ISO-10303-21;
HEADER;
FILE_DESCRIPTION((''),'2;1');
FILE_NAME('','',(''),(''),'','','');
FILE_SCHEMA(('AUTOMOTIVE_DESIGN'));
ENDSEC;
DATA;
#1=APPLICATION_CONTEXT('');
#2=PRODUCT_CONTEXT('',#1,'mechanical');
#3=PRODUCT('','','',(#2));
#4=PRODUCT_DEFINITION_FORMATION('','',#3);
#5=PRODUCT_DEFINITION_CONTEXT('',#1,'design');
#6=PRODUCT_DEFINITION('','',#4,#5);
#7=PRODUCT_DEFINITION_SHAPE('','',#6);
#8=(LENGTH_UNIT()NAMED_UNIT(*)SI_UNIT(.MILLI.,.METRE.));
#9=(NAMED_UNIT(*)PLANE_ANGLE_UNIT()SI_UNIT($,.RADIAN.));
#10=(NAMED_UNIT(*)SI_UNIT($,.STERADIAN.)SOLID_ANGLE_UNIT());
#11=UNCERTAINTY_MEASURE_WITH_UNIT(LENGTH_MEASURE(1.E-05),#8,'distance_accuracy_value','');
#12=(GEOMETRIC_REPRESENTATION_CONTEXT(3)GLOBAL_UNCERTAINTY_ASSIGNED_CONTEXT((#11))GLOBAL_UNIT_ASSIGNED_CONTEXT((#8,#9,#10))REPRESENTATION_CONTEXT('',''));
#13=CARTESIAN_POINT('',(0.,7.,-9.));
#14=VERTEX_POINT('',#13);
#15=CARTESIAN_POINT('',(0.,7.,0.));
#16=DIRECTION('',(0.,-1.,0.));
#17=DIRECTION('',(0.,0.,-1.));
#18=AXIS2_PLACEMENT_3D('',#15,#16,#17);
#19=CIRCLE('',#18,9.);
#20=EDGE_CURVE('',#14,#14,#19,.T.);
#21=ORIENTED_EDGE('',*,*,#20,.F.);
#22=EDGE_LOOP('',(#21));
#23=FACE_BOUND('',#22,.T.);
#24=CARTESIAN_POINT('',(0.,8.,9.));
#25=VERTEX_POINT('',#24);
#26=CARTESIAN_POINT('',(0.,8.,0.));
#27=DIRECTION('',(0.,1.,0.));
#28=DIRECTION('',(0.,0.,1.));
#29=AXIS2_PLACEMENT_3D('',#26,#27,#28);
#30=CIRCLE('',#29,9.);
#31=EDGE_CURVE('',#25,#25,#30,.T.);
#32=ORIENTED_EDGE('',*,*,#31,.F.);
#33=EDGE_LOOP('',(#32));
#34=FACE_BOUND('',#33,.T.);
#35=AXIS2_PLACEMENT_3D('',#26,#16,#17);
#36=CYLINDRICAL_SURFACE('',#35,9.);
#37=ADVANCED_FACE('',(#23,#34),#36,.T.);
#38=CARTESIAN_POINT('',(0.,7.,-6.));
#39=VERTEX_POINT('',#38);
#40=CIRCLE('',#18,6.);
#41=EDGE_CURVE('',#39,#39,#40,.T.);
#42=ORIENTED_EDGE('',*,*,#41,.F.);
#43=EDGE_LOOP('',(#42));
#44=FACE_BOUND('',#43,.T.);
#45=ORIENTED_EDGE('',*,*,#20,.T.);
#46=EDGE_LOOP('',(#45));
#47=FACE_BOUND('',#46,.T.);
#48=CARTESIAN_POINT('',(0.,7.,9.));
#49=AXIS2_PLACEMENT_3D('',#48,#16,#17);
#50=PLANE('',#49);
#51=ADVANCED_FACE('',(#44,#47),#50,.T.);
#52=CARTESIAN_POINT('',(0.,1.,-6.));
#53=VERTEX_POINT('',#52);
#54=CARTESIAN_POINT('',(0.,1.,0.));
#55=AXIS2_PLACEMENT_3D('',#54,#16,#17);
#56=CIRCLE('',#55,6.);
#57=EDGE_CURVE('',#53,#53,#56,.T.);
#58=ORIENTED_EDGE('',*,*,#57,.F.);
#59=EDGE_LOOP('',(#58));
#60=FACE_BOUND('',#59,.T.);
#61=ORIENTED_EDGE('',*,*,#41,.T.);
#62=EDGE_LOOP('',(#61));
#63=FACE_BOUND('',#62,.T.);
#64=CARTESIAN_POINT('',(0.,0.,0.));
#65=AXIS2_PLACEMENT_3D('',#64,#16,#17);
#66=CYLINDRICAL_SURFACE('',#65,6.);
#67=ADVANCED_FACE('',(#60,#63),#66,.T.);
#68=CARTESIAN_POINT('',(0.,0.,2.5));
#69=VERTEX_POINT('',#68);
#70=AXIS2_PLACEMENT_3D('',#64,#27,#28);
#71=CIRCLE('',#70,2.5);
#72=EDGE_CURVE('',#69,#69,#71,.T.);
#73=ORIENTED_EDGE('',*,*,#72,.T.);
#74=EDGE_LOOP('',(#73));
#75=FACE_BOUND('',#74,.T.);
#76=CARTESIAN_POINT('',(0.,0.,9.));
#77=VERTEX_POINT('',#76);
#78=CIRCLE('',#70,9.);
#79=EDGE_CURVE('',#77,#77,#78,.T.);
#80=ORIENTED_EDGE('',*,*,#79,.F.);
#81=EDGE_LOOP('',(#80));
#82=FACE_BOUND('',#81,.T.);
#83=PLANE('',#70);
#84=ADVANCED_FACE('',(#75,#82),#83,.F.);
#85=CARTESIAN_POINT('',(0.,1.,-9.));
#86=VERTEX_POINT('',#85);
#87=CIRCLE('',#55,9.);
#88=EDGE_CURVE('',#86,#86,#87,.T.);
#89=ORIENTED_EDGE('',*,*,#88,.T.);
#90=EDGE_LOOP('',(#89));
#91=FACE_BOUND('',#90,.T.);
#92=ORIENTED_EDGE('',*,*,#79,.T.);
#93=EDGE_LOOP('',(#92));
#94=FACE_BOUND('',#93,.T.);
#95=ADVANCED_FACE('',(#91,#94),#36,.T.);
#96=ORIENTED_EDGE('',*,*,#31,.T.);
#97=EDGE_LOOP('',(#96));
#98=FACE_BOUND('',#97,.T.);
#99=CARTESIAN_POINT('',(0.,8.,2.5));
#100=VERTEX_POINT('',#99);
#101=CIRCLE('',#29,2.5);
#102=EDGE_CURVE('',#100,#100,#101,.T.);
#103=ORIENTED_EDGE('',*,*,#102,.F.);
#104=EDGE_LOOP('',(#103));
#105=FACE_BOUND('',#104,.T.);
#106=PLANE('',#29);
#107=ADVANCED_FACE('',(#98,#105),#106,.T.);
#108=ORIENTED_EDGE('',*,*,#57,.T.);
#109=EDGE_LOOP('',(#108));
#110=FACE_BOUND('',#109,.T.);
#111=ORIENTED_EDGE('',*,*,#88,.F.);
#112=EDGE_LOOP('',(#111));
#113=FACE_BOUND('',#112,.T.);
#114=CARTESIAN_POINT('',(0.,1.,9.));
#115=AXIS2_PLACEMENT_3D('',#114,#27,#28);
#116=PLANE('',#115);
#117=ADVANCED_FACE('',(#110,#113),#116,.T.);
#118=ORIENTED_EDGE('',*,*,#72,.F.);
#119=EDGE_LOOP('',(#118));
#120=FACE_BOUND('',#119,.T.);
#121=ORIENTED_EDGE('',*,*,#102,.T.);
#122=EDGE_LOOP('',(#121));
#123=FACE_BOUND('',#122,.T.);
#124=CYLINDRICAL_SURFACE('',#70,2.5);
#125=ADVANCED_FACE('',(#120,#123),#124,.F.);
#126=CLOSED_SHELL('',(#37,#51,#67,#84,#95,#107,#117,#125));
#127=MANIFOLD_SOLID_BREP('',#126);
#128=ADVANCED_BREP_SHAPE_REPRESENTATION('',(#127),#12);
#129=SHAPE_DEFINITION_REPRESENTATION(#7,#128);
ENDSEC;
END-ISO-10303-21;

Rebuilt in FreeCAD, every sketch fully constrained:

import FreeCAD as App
import Part
import Sketcher

V = App.Vector


def add_polygon(sketch, points):
    """Adds a closed chain of lines whose ends are joined by coincident constraints."""
    first, n = sketch.GeometryCount, len(points)
    for a, b in zip(points, points[1:] + points[:1]):
        sketch.addGeometry(Part.LineSegment(App.Vector(*a, 0), App.Vector(*b, 0)), False)
    for i in range(n):
        sketch.addConstraint(Sketcher.Constraint("Coincident", first + i, 2, first + (i + 1) % n, 1))

doc = App.newDocument("Part")
body = doc.addObject("PartDesign::Body", "Body")

sketch1 = body.newObject("Sketcher::SketchObject", "Sketch")
sketch1.AttachmentSupport = (doc.getObject("XZ_Plane"), [""])
sketch1.MapMode = "FlatFace"
sketch1.addGeometry(Part.Circle(V(0, 0, 0), V(0, 0, 1), 9), False)
sketch1.addConstraint([
    Sketcher.Constraint("Coincident", 0, 3, -1, 1),
    Sketcher.Constraint("Diameter", 0, 18.0),
])
pad1 = body.newObject("PartDesign::Pad", "Pad")
pad1.Profile = sketch1
pad1.Length = 8
pad1.Reversed = True

sketch2 = body.newObject("Sketcher::SketchObject", "Sketch001")
sketch2.AttachmentSupport = (doc.getObject("XZ_Plane"), [""])
sketch2.MapMode = "FlatFace"
sketch2.AttachmentOffset = App.Placement(V(0, 0, -8), App.Rotation())
sketch2.addGeometry(Part.Circle(V(0, 0, 0), V(0, 0, 1), 2.5), False)
sketch2.addConstraint([
    Sketcher.Constraint("Coincident", 0, 3, -1, 1),
    Sketcher.Constraint("Diameter", 0, 5.0),
])
pocket1 = body.newObject("PartDesign::Pocket", "Pocket")
pocket1.Profile = sketch2
pocket1.Type = "ThroughAll"
pocket1.Reversed = True

sketch3 = body.newObject("Sketcher::SketchObject", "Sketch002")
sketch3.AttachmentSupport = (doc.getObject("YZ_Plane"), [""])
sketch3.MapMode = "FlatFace"
add_polygon(sketch3, [(7, 9), (1, 9), (1, 6), (7, 6)])
sketch3.addConstraint([
    Sketcher.Constraint("Horizontal", 0),
    Sketcher.Constraint("Vertical", 1),
    Sketcher.Constraint("Horizontal", 2),
    Sketcher.Constraint("Vertical", 3),
    Sketcher.Constraint("DistanceX", 0, 2, 0, 1, 6.0),
    Sketcher.Constraint("DistanceY", 1, 2, 1, 1, 3.0),
    Sketcher.Constraint("DistanceX", -1, 1, 0, 2, 1.0),
    Sketcher.Constraint("DistanceY", -1, 1, 0, 2, 9.0),
])
groove = body.newObject("PartDesign::Groove", "Groove")
groove.Profile = sketch3
groove.ReferenceAxis = (sketch3, ["H_Axis"])
groove.Angle = 360

doc.recompute()
